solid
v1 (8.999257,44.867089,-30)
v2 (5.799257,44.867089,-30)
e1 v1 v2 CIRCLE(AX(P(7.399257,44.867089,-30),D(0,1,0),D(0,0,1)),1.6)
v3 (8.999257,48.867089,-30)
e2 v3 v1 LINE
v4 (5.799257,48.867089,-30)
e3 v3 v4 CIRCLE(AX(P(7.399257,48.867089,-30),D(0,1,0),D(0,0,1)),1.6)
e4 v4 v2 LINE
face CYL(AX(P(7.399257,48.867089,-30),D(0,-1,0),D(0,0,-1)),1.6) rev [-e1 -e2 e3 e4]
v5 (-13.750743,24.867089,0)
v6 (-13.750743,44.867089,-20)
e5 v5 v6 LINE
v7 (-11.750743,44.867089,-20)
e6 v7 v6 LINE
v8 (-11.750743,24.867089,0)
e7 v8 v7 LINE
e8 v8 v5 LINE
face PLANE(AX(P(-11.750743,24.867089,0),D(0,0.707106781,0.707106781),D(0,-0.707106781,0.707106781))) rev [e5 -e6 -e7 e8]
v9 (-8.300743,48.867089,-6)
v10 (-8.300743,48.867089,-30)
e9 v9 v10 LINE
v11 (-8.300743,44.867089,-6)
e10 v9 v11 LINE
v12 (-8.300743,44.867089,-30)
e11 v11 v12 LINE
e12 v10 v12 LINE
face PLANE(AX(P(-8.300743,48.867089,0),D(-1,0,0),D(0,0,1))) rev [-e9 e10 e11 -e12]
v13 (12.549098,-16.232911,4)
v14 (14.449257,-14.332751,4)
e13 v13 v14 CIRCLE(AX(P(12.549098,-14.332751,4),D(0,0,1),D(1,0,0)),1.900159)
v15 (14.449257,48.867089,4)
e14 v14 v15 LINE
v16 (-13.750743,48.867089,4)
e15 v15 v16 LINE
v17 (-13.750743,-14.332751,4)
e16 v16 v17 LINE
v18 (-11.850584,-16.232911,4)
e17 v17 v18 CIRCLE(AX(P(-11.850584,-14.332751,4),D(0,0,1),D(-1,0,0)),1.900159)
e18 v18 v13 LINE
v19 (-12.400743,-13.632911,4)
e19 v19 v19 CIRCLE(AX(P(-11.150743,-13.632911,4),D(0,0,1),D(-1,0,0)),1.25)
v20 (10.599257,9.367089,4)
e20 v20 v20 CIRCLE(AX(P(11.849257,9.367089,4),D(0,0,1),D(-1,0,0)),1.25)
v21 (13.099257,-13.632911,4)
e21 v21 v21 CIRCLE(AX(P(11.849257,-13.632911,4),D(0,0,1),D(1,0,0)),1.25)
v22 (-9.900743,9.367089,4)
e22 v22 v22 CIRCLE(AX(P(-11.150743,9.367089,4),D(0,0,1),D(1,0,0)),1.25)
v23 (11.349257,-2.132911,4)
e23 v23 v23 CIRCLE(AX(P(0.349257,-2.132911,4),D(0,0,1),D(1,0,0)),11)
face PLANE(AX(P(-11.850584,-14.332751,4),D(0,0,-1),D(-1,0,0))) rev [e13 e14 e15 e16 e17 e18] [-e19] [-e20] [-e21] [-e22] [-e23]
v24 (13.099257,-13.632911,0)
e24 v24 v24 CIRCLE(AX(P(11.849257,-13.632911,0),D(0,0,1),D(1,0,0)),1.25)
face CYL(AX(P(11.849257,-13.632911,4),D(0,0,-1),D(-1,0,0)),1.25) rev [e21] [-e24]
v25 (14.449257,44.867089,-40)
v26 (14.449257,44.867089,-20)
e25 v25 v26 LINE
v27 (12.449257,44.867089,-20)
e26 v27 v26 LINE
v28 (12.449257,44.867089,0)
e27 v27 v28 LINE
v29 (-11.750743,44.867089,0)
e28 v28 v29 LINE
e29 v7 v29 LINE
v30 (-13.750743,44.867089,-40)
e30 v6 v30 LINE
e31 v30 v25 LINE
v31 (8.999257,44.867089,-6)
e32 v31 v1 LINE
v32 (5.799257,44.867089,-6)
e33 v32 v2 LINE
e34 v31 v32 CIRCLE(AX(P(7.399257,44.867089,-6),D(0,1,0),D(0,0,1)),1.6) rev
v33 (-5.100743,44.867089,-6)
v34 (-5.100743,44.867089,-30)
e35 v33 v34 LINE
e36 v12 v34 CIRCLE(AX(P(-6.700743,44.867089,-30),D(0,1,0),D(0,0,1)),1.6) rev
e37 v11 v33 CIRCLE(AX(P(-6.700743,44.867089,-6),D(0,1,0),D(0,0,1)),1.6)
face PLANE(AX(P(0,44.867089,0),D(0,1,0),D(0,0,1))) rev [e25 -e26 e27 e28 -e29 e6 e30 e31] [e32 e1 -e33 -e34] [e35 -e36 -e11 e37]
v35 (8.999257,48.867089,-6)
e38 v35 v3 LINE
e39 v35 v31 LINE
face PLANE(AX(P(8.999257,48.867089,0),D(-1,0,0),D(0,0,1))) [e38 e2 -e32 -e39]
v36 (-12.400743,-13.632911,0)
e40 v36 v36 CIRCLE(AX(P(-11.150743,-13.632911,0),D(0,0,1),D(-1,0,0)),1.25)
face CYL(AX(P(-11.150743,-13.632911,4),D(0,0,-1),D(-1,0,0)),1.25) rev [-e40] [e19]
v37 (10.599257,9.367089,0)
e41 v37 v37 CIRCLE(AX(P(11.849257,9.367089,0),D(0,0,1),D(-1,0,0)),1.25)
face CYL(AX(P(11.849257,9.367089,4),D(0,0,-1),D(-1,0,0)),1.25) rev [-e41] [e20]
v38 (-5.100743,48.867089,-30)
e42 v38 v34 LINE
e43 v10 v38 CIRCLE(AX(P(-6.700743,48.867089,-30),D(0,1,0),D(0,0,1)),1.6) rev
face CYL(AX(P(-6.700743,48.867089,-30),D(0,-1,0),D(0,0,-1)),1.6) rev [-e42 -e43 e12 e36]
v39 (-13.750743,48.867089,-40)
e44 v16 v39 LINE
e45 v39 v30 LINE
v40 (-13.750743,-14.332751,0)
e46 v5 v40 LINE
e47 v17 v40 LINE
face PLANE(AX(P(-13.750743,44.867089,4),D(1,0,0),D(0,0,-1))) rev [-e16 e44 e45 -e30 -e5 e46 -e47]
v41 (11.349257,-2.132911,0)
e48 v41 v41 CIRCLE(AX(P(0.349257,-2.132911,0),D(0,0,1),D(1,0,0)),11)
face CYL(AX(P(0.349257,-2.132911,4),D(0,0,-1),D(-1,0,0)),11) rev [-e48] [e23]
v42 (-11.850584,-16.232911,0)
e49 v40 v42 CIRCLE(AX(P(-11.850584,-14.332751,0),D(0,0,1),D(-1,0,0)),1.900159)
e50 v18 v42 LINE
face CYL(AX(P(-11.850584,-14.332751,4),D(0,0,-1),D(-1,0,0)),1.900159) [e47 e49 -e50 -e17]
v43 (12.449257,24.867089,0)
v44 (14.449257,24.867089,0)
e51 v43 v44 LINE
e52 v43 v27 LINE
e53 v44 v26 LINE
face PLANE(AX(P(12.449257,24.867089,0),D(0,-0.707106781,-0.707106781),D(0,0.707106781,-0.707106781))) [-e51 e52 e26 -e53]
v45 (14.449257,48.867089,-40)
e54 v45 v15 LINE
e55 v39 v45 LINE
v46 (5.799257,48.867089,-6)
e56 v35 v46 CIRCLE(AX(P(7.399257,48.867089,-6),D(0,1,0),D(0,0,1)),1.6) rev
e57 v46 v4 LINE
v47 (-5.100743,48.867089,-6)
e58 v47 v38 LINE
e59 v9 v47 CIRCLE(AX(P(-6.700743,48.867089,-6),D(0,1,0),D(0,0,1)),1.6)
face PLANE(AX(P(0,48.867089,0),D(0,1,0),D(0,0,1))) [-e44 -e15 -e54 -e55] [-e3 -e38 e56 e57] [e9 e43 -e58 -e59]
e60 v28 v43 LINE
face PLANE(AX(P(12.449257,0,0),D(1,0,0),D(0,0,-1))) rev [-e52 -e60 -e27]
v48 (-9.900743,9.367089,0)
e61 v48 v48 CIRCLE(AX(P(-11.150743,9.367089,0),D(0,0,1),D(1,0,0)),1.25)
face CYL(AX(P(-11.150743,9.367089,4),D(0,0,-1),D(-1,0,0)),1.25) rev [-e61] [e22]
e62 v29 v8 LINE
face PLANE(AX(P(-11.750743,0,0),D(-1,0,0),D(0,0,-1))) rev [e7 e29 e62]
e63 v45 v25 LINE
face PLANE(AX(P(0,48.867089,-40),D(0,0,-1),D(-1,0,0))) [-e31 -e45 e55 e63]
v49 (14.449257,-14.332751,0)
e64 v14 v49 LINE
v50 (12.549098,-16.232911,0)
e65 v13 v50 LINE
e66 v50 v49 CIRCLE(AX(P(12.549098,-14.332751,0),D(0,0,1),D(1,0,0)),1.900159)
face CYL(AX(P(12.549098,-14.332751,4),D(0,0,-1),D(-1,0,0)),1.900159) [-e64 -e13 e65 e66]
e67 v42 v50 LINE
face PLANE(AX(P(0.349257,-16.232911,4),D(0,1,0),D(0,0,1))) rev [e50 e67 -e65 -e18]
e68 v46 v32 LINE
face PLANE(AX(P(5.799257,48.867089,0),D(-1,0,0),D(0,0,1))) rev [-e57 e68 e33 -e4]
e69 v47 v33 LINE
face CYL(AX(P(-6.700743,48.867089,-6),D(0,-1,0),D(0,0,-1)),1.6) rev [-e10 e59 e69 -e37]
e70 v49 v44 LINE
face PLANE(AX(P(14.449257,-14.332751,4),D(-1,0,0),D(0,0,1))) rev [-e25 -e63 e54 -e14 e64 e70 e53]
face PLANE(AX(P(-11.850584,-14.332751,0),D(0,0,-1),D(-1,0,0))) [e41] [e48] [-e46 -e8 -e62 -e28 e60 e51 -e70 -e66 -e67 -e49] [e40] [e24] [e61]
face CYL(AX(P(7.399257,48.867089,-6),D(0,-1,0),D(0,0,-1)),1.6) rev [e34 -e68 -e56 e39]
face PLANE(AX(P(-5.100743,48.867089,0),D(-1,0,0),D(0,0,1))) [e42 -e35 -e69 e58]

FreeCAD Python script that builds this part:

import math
import FreeCAD as App
import Part
import Sketcher
Q = App.Units.Quantity


def add_polygon(sketch, points):
    """Adds a closed chain of lines whose ends are joined by coincident constraints."""
    first, n = sketch.GeometryCount, len(points)
    for a, b in zip(points, points[1:] + points[:1]):
        sketch.addGeometry(Part.LineSegment(App.Vector(*a, 0), App.Vector(*b, 0)), False)
    for i in range(n):
        sketch.addConstraint(Sketcher.Constraint("Coincident", first + i, 2, first + (i + 1) % n, 1))

doc = App.newDocument("Part")
body = doc.addObject("PartDesign::Body", "Body")

# Sketch on XY plane
sketch1 = body.newObject("Sketcher::SketchObject", "Sketch")
sketch1.AttachmentSupport = (doc.getObject("XY_Plane"), [""])
sketch1.MapMode = "FlatFace"
sketch1.addGeometry(Part.LineSegment(App.Vector(14.4, -14.3, 0), App.Vector(14.4, 44.9, 0)), False)
sketch1.addGeometry(Part.LineSegment(App.Vector(14.4, 44.9, 0), App.Vector(-13.8, 44.9, 0)), False)
sketch1.addGeometry(Part.LineSegment(App.Vector(-13.8, 44.9, 0), App.Vector(-13.8, -14.3, 0)), False)
sketch1.addGeometry(Part.ArcOfCircle(Part.Circle(App.Vector(-11.9, -14.3, 0), App.Vector(0, 0, 1), 1.9), math.radians(-180), math.radians(-90)), False)
sketch1.addGeometry(Part.LineSegment(App.Vector(-11.9, -16.2, 0), App.Vector(12.5, -16.2, 0)), False)
sketch1.addGeometry(Part.ArcOfCircle(Part.Circle(App.Vector(12.5, -14.3, 0), App.Vector(0, 0, 1), 1.9), math.radians(-90), math.radians(0)), False)
sketch1.addGeometry(Part.Circle(App.Vector(-11.2, -13.6, 0), App.Vector(0, 0, 1), 1.2), False)
sketch1.addGeometry(Part.Circle(App.Vector(11.8, -13.6, 0), App.Vector(0, 0, 1), 1.2), False)
sketch1.addGeometry(Part.Circle(App.Vector(-11.2, 9.4, 0), App.Vector(0, 0, 1), 1.2), False)
sketch1.addGeometry(Part.Circle(App.Vector(0.3, -2.1, 0), App.Vector(0, 0, 1), 11), False)
sketch1.addGeometry(Part.Circle(App.Vector(11.8, 9.4, 0), App.Vector(0, 0, 1), 1.2), False)
sketch1.addConstraint(Sketcher.Constraint("Coincident", 0, 2, 1, 1))
sketch1.addConstraint(Sketcher.Constraint("Coincident", 1, 2, 2, 1))
sketch1.addConstraint(Sketcher.Constraint("Tangent", 2, 2, 3, 1))
sketch1.addConstraint(Sketcher.Constraint("Tangent", 3, 2, 4, 1))
sketch1.addConstraint(Sketcher.Constraint("Tangent", 4, 2, 5, 1))
sketch1.addConstraint(Sketcher.Constraint("Tangent", 5, 2, 0, 1))
sketch1.addConstraint(Sketcher.Constraint("Vertical", 0))
sketch1.addConstraint(Sketcher.Constraint("Horizontal", 1))
sketch1.addConstraint(Sketcher.Constraint("Vertical", 2))
sketch1.addConstraint(Sketcher.Constraint("Horizontal", 4))
sketch1.addConstraint(Sketcher.Constraint("Equal", 3, 5))
sketch1.addConstraint(Sketcher.Constraint("Equal", 6, 7))
sketch1.addConstraint(Sketcher.Constraint("Equal", 7, 8))
sketch1.addConstraint(Sketcher.Constraint("Equal", 8, 10))
sketch1.addConstraint(Sketcher.Constraint("Horizontal", 6, 3, 7, 3))
sketch1.addConstraint(Sketcher.Constraint("Horizontal", 8, 3, 10, 3))
sketch1.addConstraint(Sketcher.Constraint("Vertical", 6, 3, 8, 3))
sketch1.addConstraint(Sketcher.Constraint("Vertical", 7, 3, 10, 3))
sketch1.addConstraint(Sketcher.Constraint("Diameter", 9, Q("22 mm")))
sketch1.addConstraint(Sketcher.Constraint("Diameter", 6, Q("2.5 mm")))
sketch1.addConstraint(Sketcher.Constraint("DistanceX", 1, 2, 1, 1, Q("28.2 mm")))
sketch1.addConstraint(Sketcher.Constraint("DistanceX", 6, 3, 7, 3, Q("23 mm")))
sketch1.addConstraint(Sketcher.Constraint("DistanceY", 6, 3, 8, 3, Q("23 mm")))
sketch1.addConstraint(Sketcher.Constraint("DistanceY", 9, 3, 0, 2, Q("47 mm")))
sketch1.addConstraint(Sketcher.Constraint("DistanceX", 6, 3, 9, 3, Q("11.5 mm")))
sketch1.addConstraint(Sketcher.Constraint("DistanceY", 6, 3, 9, 3, Q("11.5 mm")))
sketch1.addConstraint(Sketcher.Constraint("DistanceX", 10, 3, 0, 2, Q("2.6 mm")))
sketch1.addConstraint(Sketcher.Constraint("DistanceY", 3, 2, 6, 3, Q("2.6 mm")))
sketch1.addConstraint(Sketcher.Constraint("Radius", 3, Q("1.900159 mm")))
sketch1.addConstraint(Sketcher.Constraint("DistanceY", 3, 3, -1, 1, Q("14.332751 mm")))
sketch1.addConstraint(Sketcher.Constraint("DistanceX", 3, 3, -1, 1, Q("11.850584 mm")))
pad1 = body.newObject("PartDesign::Pad", "Pad")
pad1.Profile = sketch1
pad1.Length = 4

# Sketch on XZ plane
sketch2 = body.newObject("Sketcher::SketchObject", "Sketch001")
sketch2.AttachmentSupport = (doc.getObject("XZ_Plane"), [""])
sketch2.MapMode = "FlatFace"
sketch2.AttachmentOffset = App.Placement(App.Vector(0, 0, -44.867089), App.Rotation())
add_polygon(sketch2, [(-13.8, 4), (14.4, 4), (14.4, -40), (-13.8, -40)])  # lines 0-3
sketch2.addGeometry(Part.LineSegment(App.Vector(-5.1, -30, 0), App.Vector(-5.1, -6, 0)), False)  # 4
sketch2.addGeometry(Part.ArcOfCircle(Part.Circle(App.Vector(-6.7, -6, 0), App.Vector(0, 0, 1), 1.6), math.radians(0), math.radians(180)), False)  # 5
sketch2.addGeometry(Part.LineSegment(App.Vector(-8.3, -6, 0), App.Vector(-8.3, -30, 0)), False)  # 6
sketch2.addGeometry(Part.ArcOfCircle(Part.Circle(App.Vector(-6.7, -30, 0), App.Vector(0, 0, 1), 1.6), math.radians(180), math.radians(360)), False)  # 7
sketch2.addGeometry(Part.LineSegment(App.Vector(9, -30, 0), App.Vector(9, -6, 0)), False)  # 8
sketch2.addGeometry(Part.ArcOfCircle(Part.Circle(App.Vector(7.4, -6, 0), App.Vector(0, 0, 1), 1.6), math.radians(0), math.radians(180)), False)  # 9
sketch2.addGeometry(Part.LineSegment(App.Vector(5.8, -6, 0), App.Vector(5.8, -30, 0)), False)  # 10
sketch2.addGeometry(Part.ArcOfCircle(Part.Circle(App.Vector(7.4, -30, 0), App.Vector(0, 0, 1), 1.6), math.radians(180), math.radians(360)), False)  # 11
sketch2.addConstraint(Sketcher.Constraint("Tangent", 4, 2, 5, 1))
sketch2.addConstraint(Sketcher.Constraint("Tangent", 5, 2, 6, 1))
sketch2.addConstraint(Sketcher.Constraint("Tangent", 6, 2, 7, 1))
sketch2.addConstraint(Sketcher.Constraint("Tangent", 7, 2, 4, 1))
sketch2.addConstraint(Sketcher.Constraint("Tangent", 8, 2, 9, 1))
sketch2.addConstraint(Sketcher.Constraint("Tangent", 9, 2, 10, 1))
sketch2.addConstraint(Sketcher.Constraint("Tangent", 10, 2, 11, 1))
sketch2.addConstraint(Sketcher.Constraint("Tangent", 11, 2, 8, 1))
sketch2.addConstraint(Sketcher.Constraint("Horizontal", 0))
sketch2.addConstraint(Sketcher.Constraint("Vertical", 1))
sketch2.addConstraint(Sketcher.Constraint("Horizontal", 2))
sketch2.addConstraint(Sketcher.Constraint("Vertical", 3))
sketch2.addConstraint(Sketcher.Constraint("Vertical", 4))
sketch2.addConstraint(Sketcher.Constraint("Vertical", 6))
sketch2.addConstraint(Sketcher.Constraint("Vertical", 8))
sketch2.addConstraint(Sketcher.Constraint("Vertical", 10))
sketch2.addConstraint(Sketcher.Constraint("Equal", 7, 9))
sketch2.addConstraint(Sketcher.Constraint("Horizontal", 5, 3, 9, 3))
sketch2.addConstraint(Sketcher.Constraint("Horizontal", 7, 3, 11, 3))
sketch2.addConstraint(Sketcher.Constraint("Radius", 5, Q("1.6 mm")))
sketch2.addConstraint(Sketcher.Constraint("DistanceY", 1, 2, 1, 1, Q("44 mm")))
sketch2.addConstraint(Sketcher.Constraint("DistanceY", 4, 1, 4, 2, Q("24 mm")))
sketch2.addConstraint(Sketcher.Constraint("DistanceX", 0, 1, 0, 2, Q("28.2 mm")))
sketch2.addConstraint(Sketcher.Constraint("DistanceY", 5, 3, -1, 1, Q("6 mm")))
sketch2.addConstraint(Sketcher.Constraint("DistanceY", -1, 1, 0, 2, Q("4 mm")))
sketch2.addConstraint(Sketcher.Constraint("DistanceX", 5, 3, 9, 3, Q("14.1 mm")))
sketch2.addConstraint(Sketcher.Constraint("DistanceX", 9, 3, 0, 2, Q("7.05 mm")))
sketch2.addConstraint(Sketcher.Constraint("DistanceX", 5, 3, -1, 1, Q("6.700743 mm")))
pad2 = body.newObject("PartDesign::Pad", "Pad001")
pad2.Profile = sketch2
pad2.Length = 4
pad2.Reversed = True

# Sketch on YZ plane
sketch3 = body.newObject("Sketcher::SketchObject", "Sketch002")
sketch3.AttachmentSupport = (doc.getObject("YZ_Plane"), [""])
sketch3.MapMode = "FlatFace"
sketch3.AttachmentOffset = App.Placement(App.Vector(0, 0, 14.449257), App.Rotation())
add_polygon(sketch3, [(45, -20), (45, 0), (25, 0)])  # lines 0-2
sketch3.addConstraint(Sketcher.Constraint("Vertical", 0))
sketch3.addConstraint(Sketcher.Constraint("Horizontal", 1))
sketch3.addConstraint(Sketcher.Constraint("PointOnObject", 0, 2, -1))
sketch3.addConstraint(Sketcher.Constraint("Equal", 1, 0))
sketch3.addConstraint(Sketcher.Constraint("DistanceX", 1, 2, 1, 1, Q("20 mm")))
sketch3.addConstraint(Sketcher.Constraint("DistanceX", -1, 1, 0, 2, Q("44.867089 mm")))
pad3 = body.newObject("PartDesign::Pad", "Pad002")
pad3.Profile = sketch3
pad3.Length = 2
pad3.Reversed = True
doc.recompute()

datumplane = body.newObject("PartDesign::Plane", "DatumPlane")
datumplane.AttachmentSupport = (doc.getObject("YZ_Plane"), [""])
datumplane.MapMode = "FlatFace"
datumplane.AttachmentOffset = App.Placement(App.Vector(0, 0, 0.349257), App.Rotation())
mirrored = body.newObject("PartDesign::Mirrored", "Mirrored")
mirrored.Originals = [pad3]
mirrored.MirrorPlane = (datumplane, [""])
body.Tip = mirrored

doc.recompute()
